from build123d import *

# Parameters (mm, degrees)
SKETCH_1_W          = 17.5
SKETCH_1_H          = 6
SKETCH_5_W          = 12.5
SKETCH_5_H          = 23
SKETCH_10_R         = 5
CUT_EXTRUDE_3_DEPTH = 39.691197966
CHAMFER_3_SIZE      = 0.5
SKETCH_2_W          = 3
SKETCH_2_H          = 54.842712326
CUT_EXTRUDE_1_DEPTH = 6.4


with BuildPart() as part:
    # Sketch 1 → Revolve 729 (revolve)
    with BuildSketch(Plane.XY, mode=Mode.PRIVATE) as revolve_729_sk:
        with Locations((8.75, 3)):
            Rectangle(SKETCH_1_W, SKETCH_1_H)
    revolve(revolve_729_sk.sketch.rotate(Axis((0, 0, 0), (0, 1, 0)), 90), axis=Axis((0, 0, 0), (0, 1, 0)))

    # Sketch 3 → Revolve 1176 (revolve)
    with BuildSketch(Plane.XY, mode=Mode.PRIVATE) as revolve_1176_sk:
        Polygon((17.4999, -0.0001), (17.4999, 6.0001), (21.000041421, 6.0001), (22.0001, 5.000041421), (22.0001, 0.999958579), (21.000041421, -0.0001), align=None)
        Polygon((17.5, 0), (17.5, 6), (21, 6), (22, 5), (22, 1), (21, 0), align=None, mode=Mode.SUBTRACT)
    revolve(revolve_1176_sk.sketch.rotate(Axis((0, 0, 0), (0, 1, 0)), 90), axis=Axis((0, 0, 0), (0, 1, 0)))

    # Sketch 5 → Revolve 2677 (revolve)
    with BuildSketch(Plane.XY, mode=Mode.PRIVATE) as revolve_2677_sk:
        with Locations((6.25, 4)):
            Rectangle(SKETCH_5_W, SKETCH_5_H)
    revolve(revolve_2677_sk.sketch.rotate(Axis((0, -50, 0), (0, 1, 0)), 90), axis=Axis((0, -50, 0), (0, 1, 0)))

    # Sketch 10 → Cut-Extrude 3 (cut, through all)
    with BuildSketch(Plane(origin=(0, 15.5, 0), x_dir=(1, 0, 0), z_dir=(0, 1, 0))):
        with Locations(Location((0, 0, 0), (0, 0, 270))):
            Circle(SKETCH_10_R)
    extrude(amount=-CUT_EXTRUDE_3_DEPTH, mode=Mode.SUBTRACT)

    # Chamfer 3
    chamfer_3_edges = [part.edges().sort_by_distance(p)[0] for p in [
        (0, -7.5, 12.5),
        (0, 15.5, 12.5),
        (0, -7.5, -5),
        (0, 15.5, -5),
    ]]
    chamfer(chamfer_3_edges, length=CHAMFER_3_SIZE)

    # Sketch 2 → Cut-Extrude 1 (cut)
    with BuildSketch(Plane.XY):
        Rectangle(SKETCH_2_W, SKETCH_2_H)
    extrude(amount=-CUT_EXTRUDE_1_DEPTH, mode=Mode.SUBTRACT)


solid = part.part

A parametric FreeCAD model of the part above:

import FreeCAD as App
import Part
import Sketcher

V = App.Vector


def edges_at(feature, points):
    """Names of the edges that pass closest to the given points."""
    edges = feature.Shape.Edges
    near = lambda p: min(range(len(edges)), key=lambda i: edges[i].distToShape(Part.Vertex(*p))[0])
    return sorted({f"Edge{near(p) + 1}" for p in points})

doc = App.newDocument("Part")
body = doc.addObject("PartDesign::Body", "Body")

sketch1 = body.newObject("Sketcher::SketchObject", "Sketch")
sketch1.AttachmentSupport = (doc.getObject("XY_Plane"), [""])
sketch1.MapMode = "FlatFace"
sketch1.addGeometry(Part.LineSegment(V(0, 6, 0), V(0, 0, 0)), False)
sketch1.addGeometry(Part.LineSegment(V(0, 0, 0), V(18, 0, 0)), False)
sketch1.addGeometry(Part.LineSegment(V(18, 0, 0), V(18, 6, 0)), False)
sketch1.addGeometry(Part.LineSegment(V(18, 6, 0), V(0, 6, 0)), False)
sketch1.addConstraint(Sketcher.Constraint("Coincident", 0, 2, 1, 1))
sketch1.addConstraint(Sketcher.Constraint("Coincident", 1, 2, 2, 1))
sketch1.addConstraint(Sketcher.Constraint("Coincident", 2, 2, 3, 1))
sketch1.addConstraint(Sketcher.Constraint("Coincident", 3, 2, 0, 1))
sketch1.addConstraint(Sketcher.Constraint("Vertical", 0))
sketch1.addConstraint(Sketcher.Constraint("Horizontal", 1))
sketch1.addConstraint(Sketcher.Constraint("Vertical", 2))
sketch1.addConstraint(Sketcher.Constraint("Horizontal", 3))
sketch1.addConstraint(Sketcher.Constraint("Coincident", 0, 2, -1, 1))
sketch1.addConstraint(Sketcher.Constraint("DistanceY", 0, 2, 0, 1, 6.0))
sketch1.addConstraint(Sketcher.Constraint("DistanceX", 1, 1, 1, 2, 17.5))
revolution = body.newObject("PartDesign::Revolution", "Revolution")
revolution.Profile = sketch1
revolution.ReferenceAxis = (sketch1, ["V_Axis"])
revolution.Angle = 360

sketch2 = body.newObject("Sketcher::SketchObject", "Sketch001")
sketch2.AttachmentSupport = (doc.getObject("XY_Plane"), [""])
sketch2.MapMode = "FlatFace"
sketch2.addGeometry(Part.LineSegment(V(17.5, 6, 0), V(17.5, 0, 0)), False)
sketch2.addGeometry(Part.LineSegment(V(17.5, 0, 0), V(21, 0, 0)), False)
sketch2.addGeometry(Part.LineSegment(V(21, 0, 0), V(22, 1, 0)), False)
sketch2.addGeometry(Part.LineSegment(V(22, 1, 0), V(22, 5, 0)), False)
sketch2.addGeometry(Part.LineSegment(V(22, 5, 0), V(21, 6, 0)), False)
sketch2.addGeometry(Part.LineSegment(V(21, 6, 0), V(17.5, 6, 0)), False)
sketch2.addGeometry(Part.LineSegment(V(17.5, 0, 0), V(17.5, 6, 0)), False)
sketch2.addGeometry(Part.LineSegment(V(17.5, 6, 0), V(21, 6, 0)), False)
sketch2.addGeometry(Part.LineSegment(V(21, 6, 0), V(22, 5, 0)), False)
sketch2.addGeometry(Part.LineSegment(V(22, 5, 0), V(22, 1, 0)), False)
sketch2.addGeometry(Part.LineSegment(V(22, 1, 0), V(21, 0, 0)), False)
sketch2.addGeometry(Part.LineSegment(V(21, 0, 0), V(17.5, 0, 0)), False)
sketch2.addConstraint(Sketcher.Constraint("Coincident", 0, 2, 1, 1))
sketch2.addConstraint(Sketcher.Constraint("Coincident", 1, 2, 2, 1))
sketch2.addConstraint(Sketcher.Constraint("Coincident", 2, 2, 3, 1))
sketch2.addConstraint(Sketcher.Constraint("Coincident", 3, 2, 4, 1))
sketch2.addConstraint(Sketcher.Constraint("Coincident", 4, 2, 5, 1))
sketch2.addConstraint(Sketcher.Constraint("Coincident", 5, 2, 0, 1))
sketch2.addConstraint(Sketcher.Constraint("Coincident", 6, 2, 7, 1))
sketch2.addConstraint(Sketcher.Constraint("Coincident", 7, 2, 8, 1))
sketch2.addConstraint(Sketcher.Constraint("Coincident", 8, 2, 9, 1))
sketch2.addConstraint(Sketcher.Constraint("Coincident", 9, 2, 10, 1))
sketch2.addConstraint(Sketcher.Constraint("Coincident", 10, 2, 11, 1))
sketch2.addConstraint(Sketcher.Constraint("Coincident", 11, 2, 6, 1))
sketch2.addConstraint(Sketcher.Constraint("Vertical", 0))
sketch2.addConstraint(Sketcher.Constraint("Horizontal", 1))
sketch2.addConstraint(Sketcher.Constraint("Vertical", 3))
sketch2.addConstraint(Sketcher.Constraint("Horizontal", 5))
sketch2.addConstraint(Sketcher.Constraint("Vertical", 6))
sketch2.addConstraint(Sketcher.Constraint("Horizontal", 7))
sketch2.addConstraint(Sketcher.Constraint("Vertical", 9))
sketch2.addConstraint(Sketcher.Constraint("Horizontal", 11))
sketch2.addConstraint(Sketcher.Constraint("PointOnObject", 10, 2, -1))
sketch2.addConstraint(Sketcher.Constraint("Perpendicular", 2, 4))
sketch2.addConstraint(Sketcher.Constraint("Parallel", 4, 8))
sketch2.addConstraint(Sketcher.Constraint("Perpendicular", 8, 10))
sketch2.addConstraint(Sketcher.Constraint("Vertical", 1, 2, 4, 2))
sketch2.addConstraint(Sketcher.Constraint("Vertical", 7, 2, 10, 2))
sketch2.addConstraint(Sketcher.Constraint("Equal", 2, 4))
sketch2.addConstraint(Sketcher.Constraint("DistanceY", 6, 1, 6, 2, 6.0))
sketch2.addConstraint(Sketcher.Constraint("DistanceY", 9, 2, 9, 1, 4.0))
sketch2.addConstraint(Sketcher.Constraint("DistanceX", 7, 1, 7, 2, 3.5))
sketch2.addConstraint(Sketcher.Constraint("DistanceX", -1, 1, 7, 2, 21.0))
sketch2.addConstraint(Sketcher.Constraint("DistanceY", 0, 2, 0, 1, 6.0002))
sketch2.addConstraint(Sketcher.Constraint("DistanceX", 1, 1, 1, 2, 3.500141))
sketch2.addConstraint(Sketcher.Constraint("DistanceX", -1, 1, 0, 2, 17.4999))
sketch2.addConstraint(Sketcher.Constraint("DistanceY", 0, 2, -1, 1, 0.0001))
sketch2.addConstraint(Sketcher.Constraint("DistanceX", -1, 1, 2, 2, 22.0001))
revolution2 = body.newObject("PartDesign::Revolution", "Revolution001")
revolution2.Profile = sketch2
revolution2.ReferenceAxis = (sketch2, ["V_Axis"])
revolution2.Angle = 360

sketch3 = body.newObject("Sketcher::SketchObject", "Sketch002")
sketch3.AttachmentSupport = (doc.getObject("XY_Plane"), [""])
sketch3.MapMode = "FlatFace"
sketch3.addGeometry(Part.LineSegment(V(0, 16, 0), V(0, -8, 0)), False)
sketch3.addGeometry(Part.LineSegment(V(0, -8, 0), V(12, -8, 0)), False)
sketch3.addGeometry(Part.LineSegment(V(12, -8, 0), V(12, 16, 0)), False)
sketch3.addGeometry(Part.LineSegment(V(12, 16, 0), V(0, 16, 0)), False)
sketch3.addConstraint(Sketcher.Constraint("Coincident", 0, 2, 1, 1))
sketch3.addConstraint(Sketcher.Constraint("Coincident", 1, 2, 2, 1))
sketch3.addConstraint(Sketcher.Constraint("Coincident", 2, 2, 3, 1))
sketch3.addConstraint(Sketcher.Constraint("Coincident", 3, 2, 0, 1))
sketch3.addConstraint(Sketcher.Constraint("Vertical", 0))
sketch3.addConstraint(Sketcher.Constraint("Horizontal", 1))
sketch3.addConstraint(Sketcher.Constraint("Vertical", 2))
sketch3.addConstraint(Sketcher.Constraint("Horizontal", 3))
sketch3.addConstraint(Sketcher.Constraint("PointOnObject", 0, 2, -2))
sketch3.addConstraint(Sketcher.Constraint("DistanceY", 0, 2, 0, 1, 23.0))
sketch3.addConstraint(Sketcher.Constraint("DistanceX", 1, 1, 1, 2, 12.5))
sketch3.addConstraint(Sketcher.Constraint("DistanceY", 0, 2, -1, 1, 7.5))
revolution3 = body.newObject("PartDesign::Revolution", "Revolution002")
revolution3.Profile = sketch3
revolution3.ReferenceAxis = (sketch3, ["V_Axis"])
revolution3.Angle = 360

sketch4 = body.newObject("Sketcher::SketchObject", "Sketch003")
sketch4.AttachmentSupport = (doc.getObject("XZ_Plane"), [""])
sketch4.MapMode = "FlatFace"
sketch4.AttachmentOffset = App.Placement(V(0, 0, -15.5), App.Rotation())
sketch4.addGeometry(Part.Circle(V(0, 0, 0), V(0, 0, 1), 5), False)
sketch4.addConstraint(Sketcher.Constraint("Coincident", 0, 3, -1, 1))
sketch4.addConstraint(Sketcher.Constraint("Diameter", 0, 10.0))
pocket1 = body.newObject("PartDesign::Pocket", "Pocket")
pocket1.Profile = sketch4
pocket1.Type = "ThroughAll"
pocket1.Reversed = True
doc.recompute()

chamfer = body.newObject("PartDesign::Chamfer", "Chamfer")
chamfer.Base = (pocket1, edges_at(pocket1, [
    (0, -7.5, 12.5),
    (0, 15.5, 12.5),
    (0, -7.5, -5),
    (0, 15.5, -5),
]))
chamfer.Size = 0.5

sketch5 = body.newObject("Sketcher::SketchObject", "Sketch004")
sketch5.AttachmentSupport = (doc.getObject("XY_Plane"), [""])
sketch5.MapMode = "FlatFace"
sketch5.addGeometry(Part.LineSegment(V(-1.5, 27.4, 0), V(-1.5, -27.4, 0)), False)
sketch5.addGeometry(Part.LineSegment(V(-1.5, -27.4, 0), V(1.5, -27.4, 0)), False)
sketch5.addGeometry(Part.LineSegment(V(1.5, -27.4, 0), V(1.5, 27.4, 0)), False)
sketch5.addGeometry(Part.LineSegment(V(1.5, 27.4, 0), V(-1.5, 27.4, 0)), False)
sketch5.addConstraint(Sketcher.Constraint("Coincident", 0, 2, 1, 1))
sketch5.addConstraint(Sketcher.Constraint("Coincident", 1, 2, 2, 1))
sketch5.addConstraint(Sketcher.Constraint("Coincident", 2, 2, 3, 1))
sketch5.addConstraint(Sketcher.Constraint("Coincident", 3, 2, 0, 1))
sketch5.addConstraint(Sketcher.Constraint("Vertical", 0))
sketch5.addConstraint(Sketcher.Constraint("Horizontal", 1))
sketch5.addConstraint(Sketcher.Constraint("Vertical", 2))
sketch5.addConstraint(Sketcher.Constraint("Horizontal", 3))
sketch5.addConstraint(Sketcher.Constraint("Symmetric", 0, 2, 2, 2, -1, 1))
sketch5.addConstraint(Sketcher.Constraint("DistanceX", 1, 1, 1, 2, 3.0))
sketch5.addConstraint(Sketcher.Constraint("DistanceY", 0, 2, 0, 1, 54.842712))
pocket2 = body.newObject("PartDesign::Pocket", "Pocket001")
pocket2.Profile = sketch5
pocket2.Length = 6.4

doc.recompute()
